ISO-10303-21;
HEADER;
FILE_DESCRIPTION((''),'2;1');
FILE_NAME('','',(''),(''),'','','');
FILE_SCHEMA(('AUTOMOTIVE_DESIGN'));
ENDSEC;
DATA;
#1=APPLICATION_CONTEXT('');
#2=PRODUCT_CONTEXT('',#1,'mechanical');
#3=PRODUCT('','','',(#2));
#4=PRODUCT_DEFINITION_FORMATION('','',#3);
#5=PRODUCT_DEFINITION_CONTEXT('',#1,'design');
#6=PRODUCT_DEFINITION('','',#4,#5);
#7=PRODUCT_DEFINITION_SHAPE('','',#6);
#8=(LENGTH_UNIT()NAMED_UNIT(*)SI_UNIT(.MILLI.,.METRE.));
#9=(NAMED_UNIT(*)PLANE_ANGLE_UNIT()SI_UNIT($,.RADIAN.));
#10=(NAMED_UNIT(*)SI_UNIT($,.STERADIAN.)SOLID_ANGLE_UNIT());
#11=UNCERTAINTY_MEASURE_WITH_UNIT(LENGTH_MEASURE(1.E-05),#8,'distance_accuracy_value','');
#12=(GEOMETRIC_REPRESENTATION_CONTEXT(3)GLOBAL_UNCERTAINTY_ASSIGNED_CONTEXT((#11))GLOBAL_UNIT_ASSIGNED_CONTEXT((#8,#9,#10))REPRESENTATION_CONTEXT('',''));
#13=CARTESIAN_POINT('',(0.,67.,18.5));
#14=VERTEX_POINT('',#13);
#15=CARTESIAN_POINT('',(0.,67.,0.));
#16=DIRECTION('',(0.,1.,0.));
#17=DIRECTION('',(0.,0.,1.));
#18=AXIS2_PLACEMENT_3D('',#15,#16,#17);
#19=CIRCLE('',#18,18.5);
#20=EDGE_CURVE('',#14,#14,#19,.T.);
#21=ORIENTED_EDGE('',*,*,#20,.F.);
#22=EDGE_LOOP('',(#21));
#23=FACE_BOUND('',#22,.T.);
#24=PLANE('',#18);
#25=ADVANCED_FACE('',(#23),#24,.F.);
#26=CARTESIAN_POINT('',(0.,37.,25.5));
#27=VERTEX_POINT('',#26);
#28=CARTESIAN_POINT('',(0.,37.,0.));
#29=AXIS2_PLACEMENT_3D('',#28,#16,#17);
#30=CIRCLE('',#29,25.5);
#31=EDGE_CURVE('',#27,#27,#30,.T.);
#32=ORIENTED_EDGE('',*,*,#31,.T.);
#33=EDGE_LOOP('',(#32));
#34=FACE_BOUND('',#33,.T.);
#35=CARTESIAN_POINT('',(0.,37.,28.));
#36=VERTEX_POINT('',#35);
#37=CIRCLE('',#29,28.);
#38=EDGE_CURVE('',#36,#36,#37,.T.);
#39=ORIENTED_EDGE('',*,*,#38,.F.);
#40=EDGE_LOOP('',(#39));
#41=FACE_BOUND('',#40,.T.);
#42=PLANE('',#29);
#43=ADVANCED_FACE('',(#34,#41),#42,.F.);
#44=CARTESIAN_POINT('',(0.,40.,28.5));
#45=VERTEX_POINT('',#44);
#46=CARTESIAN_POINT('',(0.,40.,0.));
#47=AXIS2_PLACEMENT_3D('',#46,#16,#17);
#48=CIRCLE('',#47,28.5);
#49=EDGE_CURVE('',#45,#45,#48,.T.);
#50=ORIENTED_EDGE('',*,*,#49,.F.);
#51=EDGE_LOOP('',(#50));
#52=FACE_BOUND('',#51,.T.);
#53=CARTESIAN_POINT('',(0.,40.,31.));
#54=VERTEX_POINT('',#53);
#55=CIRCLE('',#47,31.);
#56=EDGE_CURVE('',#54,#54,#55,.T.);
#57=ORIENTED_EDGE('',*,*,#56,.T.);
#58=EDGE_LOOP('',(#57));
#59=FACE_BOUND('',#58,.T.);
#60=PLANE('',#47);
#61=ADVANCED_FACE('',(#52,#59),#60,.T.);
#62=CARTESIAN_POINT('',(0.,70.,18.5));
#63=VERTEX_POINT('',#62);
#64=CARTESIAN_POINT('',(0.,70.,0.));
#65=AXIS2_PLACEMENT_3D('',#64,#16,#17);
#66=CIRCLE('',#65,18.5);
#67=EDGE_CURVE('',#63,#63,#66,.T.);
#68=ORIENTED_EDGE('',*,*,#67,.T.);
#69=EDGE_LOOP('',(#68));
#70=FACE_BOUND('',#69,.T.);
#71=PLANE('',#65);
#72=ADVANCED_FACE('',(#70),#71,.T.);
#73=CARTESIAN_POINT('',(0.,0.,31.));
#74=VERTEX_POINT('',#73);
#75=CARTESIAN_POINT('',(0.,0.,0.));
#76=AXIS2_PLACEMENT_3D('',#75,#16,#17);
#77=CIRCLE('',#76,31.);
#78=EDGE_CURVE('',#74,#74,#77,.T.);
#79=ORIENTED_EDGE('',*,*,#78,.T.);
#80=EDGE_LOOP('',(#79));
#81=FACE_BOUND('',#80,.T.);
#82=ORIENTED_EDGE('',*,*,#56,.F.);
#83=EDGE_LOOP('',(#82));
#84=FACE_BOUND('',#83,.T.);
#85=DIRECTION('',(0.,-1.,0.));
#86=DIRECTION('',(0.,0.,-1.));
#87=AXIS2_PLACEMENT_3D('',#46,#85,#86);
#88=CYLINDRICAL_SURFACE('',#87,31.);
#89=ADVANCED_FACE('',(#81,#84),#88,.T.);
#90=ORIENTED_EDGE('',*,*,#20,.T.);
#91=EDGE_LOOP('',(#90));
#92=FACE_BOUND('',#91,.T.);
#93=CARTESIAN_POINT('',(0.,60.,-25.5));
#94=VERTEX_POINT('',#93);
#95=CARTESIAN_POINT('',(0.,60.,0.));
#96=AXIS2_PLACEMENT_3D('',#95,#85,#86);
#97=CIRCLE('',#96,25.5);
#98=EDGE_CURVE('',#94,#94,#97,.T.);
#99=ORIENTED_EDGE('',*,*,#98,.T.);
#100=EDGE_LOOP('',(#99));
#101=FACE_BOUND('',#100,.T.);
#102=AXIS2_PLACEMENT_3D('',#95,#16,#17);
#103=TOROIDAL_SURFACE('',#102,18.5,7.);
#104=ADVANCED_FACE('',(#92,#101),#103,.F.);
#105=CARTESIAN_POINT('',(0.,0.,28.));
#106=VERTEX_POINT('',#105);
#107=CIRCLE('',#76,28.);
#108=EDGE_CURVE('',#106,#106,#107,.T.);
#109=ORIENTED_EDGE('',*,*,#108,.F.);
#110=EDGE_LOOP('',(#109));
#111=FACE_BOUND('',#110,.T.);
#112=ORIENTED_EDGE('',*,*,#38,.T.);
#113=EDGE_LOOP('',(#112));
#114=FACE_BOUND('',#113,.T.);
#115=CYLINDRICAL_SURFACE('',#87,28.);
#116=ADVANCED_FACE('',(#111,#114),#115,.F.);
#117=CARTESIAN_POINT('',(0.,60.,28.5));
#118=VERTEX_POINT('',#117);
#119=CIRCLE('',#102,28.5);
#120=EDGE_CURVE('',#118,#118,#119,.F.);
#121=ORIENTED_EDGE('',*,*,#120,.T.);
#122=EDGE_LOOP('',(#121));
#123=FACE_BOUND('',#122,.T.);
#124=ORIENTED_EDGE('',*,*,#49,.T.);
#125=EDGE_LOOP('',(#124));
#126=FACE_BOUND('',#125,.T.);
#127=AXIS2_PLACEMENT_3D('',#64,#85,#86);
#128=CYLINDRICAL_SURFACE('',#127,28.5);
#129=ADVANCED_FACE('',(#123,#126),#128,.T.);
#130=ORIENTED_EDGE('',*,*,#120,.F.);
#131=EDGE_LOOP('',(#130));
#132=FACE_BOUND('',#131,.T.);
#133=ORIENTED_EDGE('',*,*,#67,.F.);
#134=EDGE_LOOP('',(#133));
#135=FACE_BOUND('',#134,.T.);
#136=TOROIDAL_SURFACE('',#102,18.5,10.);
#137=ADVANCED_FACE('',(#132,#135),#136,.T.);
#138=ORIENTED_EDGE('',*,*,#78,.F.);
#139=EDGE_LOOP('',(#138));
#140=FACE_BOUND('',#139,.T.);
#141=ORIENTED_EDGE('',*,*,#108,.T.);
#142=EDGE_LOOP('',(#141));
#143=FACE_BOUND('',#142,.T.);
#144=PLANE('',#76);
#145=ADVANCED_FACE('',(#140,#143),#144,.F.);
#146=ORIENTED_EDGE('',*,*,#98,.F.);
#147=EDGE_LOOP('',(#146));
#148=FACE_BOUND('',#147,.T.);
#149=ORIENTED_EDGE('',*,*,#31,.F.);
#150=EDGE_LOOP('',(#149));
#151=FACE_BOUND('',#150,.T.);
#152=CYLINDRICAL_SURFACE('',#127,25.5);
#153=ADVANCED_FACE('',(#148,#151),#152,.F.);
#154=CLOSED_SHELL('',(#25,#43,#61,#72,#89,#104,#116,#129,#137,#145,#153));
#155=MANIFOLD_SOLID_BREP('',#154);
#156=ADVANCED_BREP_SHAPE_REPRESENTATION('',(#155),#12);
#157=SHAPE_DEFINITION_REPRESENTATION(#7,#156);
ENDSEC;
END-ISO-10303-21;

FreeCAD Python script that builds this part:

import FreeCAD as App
import Part
import Sketcher

V = App.Vector


def edges_at(feature, points):
    """Names of the edges that pass closest to the given points."""
    edges = feature.Shape.Edges
    near = lambda p: min(range(len(edges)), key=lambda i: edges[i].distToShape(Part.Vertex(*p))[0])
    return sorted({f"Edge{near(p) + 1}" for p in points})


def faces_at(feature, points):
    """Names of the faces that lie closest to the given points."""
    faces = feature.Shape.Faces
    near = lambda p: min(range(len(faces)), key=lambda i: faces[i].distToShape(Part.Vertex(*p))[0])
    return sorted({f"Face{near(p) + 1}" for p in points})

doc = App.newDocument("Part")
body = doc.addObject("PartDesign::Body", "Body")

sketch1 = body.newObject("Sketcher::SketchObject", "Sketch")
sketch1.AttachmentSupport = (doc.getObject("XZ_Plane"), [""])
sketch1.MapMode = "FlatFace"
sketch1.addGeometry(Part.Circle(V(0, 0, 0), V(0, 0, 1), 31), False)
sketch1.addConstraint([
    Sketcher.Constraint("Coincident", 0, 3, -1, 1),
    Sketcher.Constraint("Diameter", 0, 62.0),
])
pad1 = body.newObject("PartDesign::Pad", "Pad")
pad1.Profile = sketch1
pad1.Length = 40
pad1.Reversed = True

sketch2 = body.newObject("Sketcher::SketchObject", "Sketch001")
sketch2.AttachmentSupport = (doc.getObject("XZ_Plane"), [""])
sketch2.MapMode = "FlatFace"
sketch2.AttachmentOffset = App.Placement(V(0, 0, -40), App.Rotation())
sketch2.addGeometry(Part.Circle(V(0, 0, 0), V(0, 0, 1), 28), False)
sketch2.addConstraint([
    Sketcher.Constraint("Coincident", 0, 3, -1, 1),
    Sketcher.Constraint("Diameter", 0, 57.0),
])
pad2 = body.newObject("PartDesign::Pad", "Pad001")
pad2.Profile = sketch2
pad2.Length = 30
pad2.Reversed = True
doc.recompute()

fillet = body.newObject("PartDesign::Fillet", "Fillet")
fillet.Base = (pad2, edges_at(pad2, [(0, 70, -28.5)]))
fillet.Radius = 10
doc.recompute()

thickness = body.newObject("PartDesign::Thickness", "Thickness")
thickness.Base = (fillet, faces_at(fillet, [(0, 0, 0)]))
thickness.Value = 3
thickness.Reversed = True
thickness.Join = "Intersection"

doc.recompute()
